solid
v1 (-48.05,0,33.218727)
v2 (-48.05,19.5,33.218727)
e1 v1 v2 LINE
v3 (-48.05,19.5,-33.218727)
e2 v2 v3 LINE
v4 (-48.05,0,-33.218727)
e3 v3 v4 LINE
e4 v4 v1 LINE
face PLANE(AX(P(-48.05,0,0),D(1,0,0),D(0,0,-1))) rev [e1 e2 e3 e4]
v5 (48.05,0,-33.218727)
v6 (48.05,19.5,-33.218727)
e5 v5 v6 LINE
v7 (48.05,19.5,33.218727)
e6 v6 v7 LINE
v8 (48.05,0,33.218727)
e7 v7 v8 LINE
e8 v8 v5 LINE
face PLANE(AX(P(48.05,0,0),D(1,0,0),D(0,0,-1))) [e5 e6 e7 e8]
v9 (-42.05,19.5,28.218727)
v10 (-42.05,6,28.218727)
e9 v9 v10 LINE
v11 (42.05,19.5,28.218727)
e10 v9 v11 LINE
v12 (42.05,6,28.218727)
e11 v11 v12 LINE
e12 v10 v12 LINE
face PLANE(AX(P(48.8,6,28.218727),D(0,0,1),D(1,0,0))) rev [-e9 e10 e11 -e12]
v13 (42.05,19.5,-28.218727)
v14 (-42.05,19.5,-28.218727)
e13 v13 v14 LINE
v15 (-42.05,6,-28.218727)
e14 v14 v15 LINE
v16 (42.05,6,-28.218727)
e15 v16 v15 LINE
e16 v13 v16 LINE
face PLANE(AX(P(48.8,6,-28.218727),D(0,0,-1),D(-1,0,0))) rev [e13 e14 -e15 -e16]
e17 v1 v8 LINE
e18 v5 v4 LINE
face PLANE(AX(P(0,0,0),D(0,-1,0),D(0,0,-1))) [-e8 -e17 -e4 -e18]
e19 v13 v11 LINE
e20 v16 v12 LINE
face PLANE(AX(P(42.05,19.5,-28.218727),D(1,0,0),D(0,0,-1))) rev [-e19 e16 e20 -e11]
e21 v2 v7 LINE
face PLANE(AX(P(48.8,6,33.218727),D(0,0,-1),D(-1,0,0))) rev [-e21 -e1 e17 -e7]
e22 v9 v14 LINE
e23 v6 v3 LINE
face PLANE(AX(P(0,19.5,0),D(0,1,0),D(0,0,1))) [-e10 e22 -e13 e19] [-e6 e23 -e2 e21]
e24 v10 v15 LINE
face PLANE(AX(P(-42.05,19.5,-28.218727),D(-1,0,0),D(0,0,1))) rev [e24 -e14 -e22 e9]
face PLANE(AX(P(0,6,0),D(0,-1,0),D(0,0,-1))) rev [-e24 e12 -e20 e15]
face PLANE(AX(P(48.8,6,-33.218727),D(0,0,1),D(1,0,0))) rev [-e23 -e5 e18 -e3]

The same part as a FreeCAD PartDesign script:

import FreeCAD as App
import Part
import Sketcher

doc = App.newDocument("Part")
params = doc.addObject("Spreadsheet::Sheet", "Params")
for row, (alias, value) in enumerate([
    ("sketch1_width", "97.6 mm"),
    ("pad1_length", "6 mm"),
    ("sketch2_width", "55 mm"),
    ("sketch2_height", "54 mm"),
    ("sketch2_width2", "97.6 mm"),
    ("pad2_length", "13.5 mm"),
    ("sketch3_width", "97.6 mm"),
    ("pocket1_length", "13.5 mm"),
    ("sketch4_width", "19.5 mm"),
    ("pocket2_length", "0.75 mm"),
    ("sketch5_width", "19.5 mm"),
    ("pocket3_length", "0.75 mm"),
    ("sketch6_width", "6 mm"),
    ("pad3_length", "13.5 mm"),
], start=1):
    params.set(f"A{row}", alias)
    params.set(f"B{row}", "=" + value)
    params.setAlias(f"B{row}", alias)

body = doc.addObject("PartDesign::Body", "Body")

sketch1 = body.newObject("Sketcher::SketchObject", "Sketch")
sketch1.AttachmentSupport = (doc.getObject("XZ_Plane"), [""])
sketch1.MapMode = "FlatFace"
sketch1.addGeometry([
    Part.LineSegment(App.Vector(-49, -33, 0), App.Vector(-49, 33, 0)),
    Part.LineSegment(App.Vector(-49, 33, 0), App.Vector(49, 33, 0)),
    Part.LineSegment(App.Vector(49, 33, 0), App.Vector(49, -33, 0)),
    Part.LineSegment(App.Vector(49, -33, 0), App.Vector(-49, -33, 0)),
], False)
sketch1.addConstraint([
    Sketcher.Constraint("Coincident", 0, 2, 1, 1),
    Sketcher.Constraint("Coincident", 1, 2, 2, 1),
    Sketcher.Constraint("Coincident", 2, 2, 3, 1),
    Sketcher.Constraint("Coincident", 3, 2, 0, 1),
    Sketcher.Constraint("Vertical", 0),
    Sketcher.Constraint("Horizontal", 1),
    Sketcher.Constraint("Vertical", 2),
    Sketcher.Constraint("Horizontal", 3),
    Sketcher.Constraint("Symmetric", 0, 2, 2, 2, -1, 1),
    Sketcher.Constraint("DistanceX", 1, 1, 1, 2, 97.6),
    Sketcher.Constraint("DistanceY", 0, 1, 0, 2, 66.437454),
])
sketch1.setExpression("Constraints[9]", "Params.sketch1_width")
pad1 = body.newObject("PartDesign::Pad", "Pad")
pad1.Profile = sketch1
pad1.setExpression("Length", "Params.pad1_length")
pad1.Reversed = True

sketch2 = body.newObject("Sketcher::SketchObject", "Sketch001")
sketch2.AttachmentSupport = (doc.getObject("XZ_Plane"), [""])
sketch2.MapMode = "FlatFace"
sketch2.AttachmentOffset = App.Placement(App.Vector(0, 0, -6), App.Rotation())
sketch2.addGeometry([
    Part.LineSegment(App.Vector(-49, 33, 0), App.Vector(49, 33, 0)),
    Part.LineSegment(App.Vector(49, 33, 0), App.Vector(49, -33, 0)),
    Part.LineSegment(App.Vector(49, -33, 0), App.Vector(-49, -33, 0)),
    Part.LineSegment(App.Vector(-49, -33, 0), App.Vector(-49, 33, 0)),
    Part.LineSegment(App.Vector(31, -27, 0), App.Vector(31, 27, 0)),
    Part.LineSegment(App.Vector(31, 27, 0), App.Vector(-24, 27, 0)),
    Part.LineSegment(App.Vector(-24, 27, 0), App.Vector(-24, -27, 0)),
    Part.LineSegment(App.Vector(-24, -27, 0), App.Vector(31, -27, 0)),
], False)
sketch2.addConstraint([
    Sketcher.Constraint("Coincident", 0, 2, 1, 1),
    Sketcher.Constraint("Coincident", 1, 2, 2, 1),
    Sketcher.Constraint("Coincident", 2, 2, 3, 1),
    Sketcher.Constraint("Coincident", 3, 2, 0, 1),
    Sketcher.Constraint("Coincident", 4, 2, 5, 1),
    Sketcher.Constraint("Coincident", 5, 2, 6, 1),
    Sketcher.Constraint("Coincident", 6, 2, 7, 1),
    Sketcher.Constraint("Coincident", 7, 2, 4, 1),
    Sketcher.Constraint("Horizontal", 0),
    Sketcher.Constraint("Vertical", 1),
    Sketcher.Constraint("Horizontal", 2),
    Sketcher.Constraint("Vertical", 3),
    Sketcher.Constraint("Vertical", 4),
    Sketcher.Constraint("Horizontal", 5),
    Sketcher.Constraint("Vertical", 6),
    Sketcher.Constraint("Horizontal", 7),
    Sketcher.Constraint("Symmetric", 0, 2, 2, 2, -1, 1),
    Sketcher.Constraint("DistanceX", 5, 2, 5, 1, 55.0),
    Sketcher.Constraint("DistanceY", 4, 1, 4, 2, 54.0),
    Sketcher.Constraint("DistanceX", 0, 1, 0, 2, 97.6),
    Sketcher.Constraint("DistanceY", -1, 1, 4, 2, 27.0),
    Sketcher.Constraint("DistanceX", 4, 2, 0, 2, 18.0),
    Sketcher.Constraint("DistanceY", 1, 2, 1, 1, 66.437454),
])
sketch2.setExpression("Constraints[17]", "Params.sketch2_width")
sketch2.setExpression("Constraints[18]", "Params.sketch2_height")
sketch2.setExpression("Constraints[19]", "Params.sketch2_width2")
pad2 = body.newObject("PartDesign::Pad", "Pad001")
pad2.Profile = sketch2
pad2.setExpression("Length", "Params.pad2_length")
pad2.Reversed = True

sketch3 = body.newObject("Sketcher::SketchObject", "Sketch002")
sketch3.AttachmentSupport = (doc.getObject("XZ_Plane"), [""])
sketch3.MapMode = "FlatFace"
sketch3.AttachmentOffset = App.Placement(App.Vector(0, 0, -19.5), App.Rotation())
sketch3.addGeometry([
    Part.LineSegment(App.Vector(-49, -28, 0), App.Vector(-49, 28, 0)),
    Part.LineSegment(App.Vector(-49, 28, 0), App.Vector(49, 28, 0)),
    Part.LineSegment(App.Vector(49, 28, 0), App.Vector(49, -28, 0)),
    Part.LineSegment(App.Vector(49, -28, 0), App.Vector(-49, -28, 0)),
], False)
sketch3.addConstraint([
    Sketcher.Constraint("Coincident", 0, 2, 1, 1),
    Sketcher.Constraint("Coincident", 1, 2, 2, 1),
    Sketcher.Constraint("Coincident", 2, 2, 3, 1),
    Sketcher.Constraint("Coincident", 3, 2, 0, 1),
    Sketcher.Constraint("Vertical", 0),
    Sketcher.Constraint("Horizontal", 1),
    Sketcher.Constraint("Vertical", 2),
    Sketcher.Constraint("Horizontal", 3),
    Sketcher.Constraint("Symmetric", 0, 2, 2, 2, -1, 1),
    Sketcher.Constraint("DistanceX", 1, 1, 1, 2, 97.6),
    Sketcher.Constraint("DistanceY", 0, 1, 0, 2, 56.437454),
])
sketch3.setExpression("Constraints[9]", "Params.sketch3_width")
pocket1 = body.newObject("PartDesign::Pocket", "Pocket")
pocket1.Profile = sketch3
pocket1.setExpression("Length", "Params.pocket1_length")
pocket1.Reversed = True

sketch4 = body.newObject("Sketcher::SketchObject", "Sketch003")
sketch4.AttachmentSupport = (doc.getObject("YZ_Plane"), [""])
sketch4.MapMode = "FlatFace"
sketch4.AttachmentOffset = App.Placement(App.Vector(0, 0, 48.8), App.Rotation())
sketch4.addGeometry([
    Part.LineSegment(App.Vector(20, 33, 0), App.Vector(0, 33, 0)),
    Part.LineSegment(App.Vector(0, 33, 0), App.Vector(0, -33, 0)),
    Part.LineSegment(App.Vector(0, -33, 0), App.Vector(20, -33, 0)),
    Part.LineSegment(App.Vector(20, -33, 0), App.Vector(20, 33, 0)),
], False)
sketch4.addConstraint([
    Sketcher.Constraint("Coincident", 0, 2, 1, 1),
    Sketcher.Constraint("Coincident", 1, 2, 2, 1),
    Sketcher.Constraint("Coincident", 2, 2, 3, 1),
    Sketcher.Constraint("Coincident", 3, 2, 0, 1),
    Sketcher.Constraint("Horizontal", 0),
    Sketcher.Constraint("Vertical", 1),
    Sketcher.Constraint("Horizontal", 2),
    Sketcher.Constraint("Vertical", 3),
    Sketcher.Constraint("Symmetric", 0, 2, 1, 2, -1, 1),
    Sketcher.Constraint("DistanceX", 0, 2, 0, 1, 19.5),
    Sketcher.Constraint("DistanceY", 1, 2, 1, 1, 66.437454),
])
sketch4.setExpression("Constraints[9]", "Params.sketch4_width")
pocket2 = body.newObject("PartDesign::Pocket", "Pocket001")
pocket2.Profile = sketch4
pocket2.setExpression("Length", "Params.pocket2_length")

sketch5 = body.newObject("Sketcher::SketchObject", "Sketch004")
sketch5.AttachmentSupport = (doc.getObject("YZ_Plane"), [""])
sketch5.MapMode = "FlatFace"
sketch5.AttachmentOffset = App.Placement(App.Vector(0, 0, -48.8), App.Rotation())
sketch5.addGeometry([
    Part.LineSegment(App.Vector(20, -33, 0), App.Vector(0, -33, 0)),
    Part.LineSegment(App.Vector(0, -33, 0), App.Vector(0, 33, 0)),
    Part.LineSegment(App.Vector(0, 33, 0), App.Vector(20, 33, 0)),
    Part.LineSegment(App.Vector(20, 33, 0), App.Vector(20, -33, 0)),
], False)
sketch5.addConstraint([
    Sketcher.Constraint("Coincident", 0, 2, 1, 1),
    Sketcher.Constraint("Coincident", 1, 2, 2, 1),
    Sketcher.Constraint("Coincident", 2, 2, 3, 1),
    Sketcher.Constraint("Coincident", 3, 2, 0, 1),
    Sketcher.Constraint("Horizontal", 0),
    Sketcher.Constraint("Vertical", 1),
    Sketcher.Constraint("Horizontal", 2),
    Sketcher.Constraint("Vertical", 3),
    Sketcher.Constraint("Symmetric", 0, 2, 1, 2, -1, 1),
    Sketcher.Constraint("DistanceX", 0, 2, 0, 1, 19.5),
    Sketcher.Constraint("DistanceY", 1, 1, 1, 2, 66.437454),
])
sketch5.setExpression("Constraints[9]", "Params.sketch5_width")
pocket3 = body.newObject("PartDesign::Pocket", "Pocket002")
pocket3.Profile = sketch5
pocket3.setExpression("Length", "Params.pocket3_length")
pocket3.Reversed = True

sketch6 = body.newObject("Sketcher::SketchObject", "Sketch005")
sketch6.AttachmentSupport = (doc.getObject("XZ_Plane"), [""])
sketch6.MapMode = "FlatFace"
sketch6.AttachmentOffset = App.Placement(App.Vector(0, 0, -6), App.Rotation())
sketch6.addGeometry([
    Part.LineSegment(App.Vector(-48, -28, 0), App.Vector(-48, 28, 0)),
    Part.LineSegment(App.Vector(-48, 28, 0), App.Vector(-42, 28, 0)),
    Part.LineSegment(App.Vector(-42, 28, 0), App.Vector(-42, -28, 0)),
    Part.LineSegment(App.Vector(-42, -28, 0), App.Vector(-48, -28, 0)),
    Part.LineSegment(App.Vector(42, -28, 0), App.Vector(42, 28, 0)),
    Part.LineSegment(App.Vector(42, 28, 0), App.Vector(48, 28, 0)),
    Part.LineSegment(App.Vector(48, 28, 0), App.Vector(48, -28, 0)),
    Part.LineSegment(App.Vector(48, -28, 0), App.Vector(42, -28, 0)),
], False)
sketch6.addConstraint([
    Sketcher.Constraint("Coincident", 0, 2, 1, 1),
    Sketcher.Constraint("Coincident", 1, 2, 2, 1),
    Sketcher.Constraint("Coincident", 2, 2, 3, 1),
    Sketcher.Constraint("Coincident", 3, 2, 0, 1),
    Sketcher.Constraint("Coincident", 4, 2, 5, 1),
    Sketcher.Constraint("Coincident", 5, 2, 6, 1),
    Sketcher.Constraint("Coincident", 6, 2, 7, 1),
    Sketcher.Constraint("Coincident", 7, 2, 4, 1),
    Sketcher.Constraint("Vertical", 0),
    Sketcher.Constraint("Horizontal", 1),
    Sketcher.Constraint("Vertical", 2),
    Sketcher.Constraint("Horizontal", 3),
    Sketcher.Constraint("Vertical", 4),
    Sketcher.Constraint("Horizontal", 5),
    Sketcher.Constraint("Vertical", 6),
    Sketcher.Constraint("Horizontal", 7),
    Sketcher.Constraint("Symmetric", 2, 2, 4, 2, -1, 1),
    Sketcher.Constraint("Symmetric", 0, 2, 6, 2, -1, 1),
    Sketcher.Constraint("Horizontal", 1, 2, 4, 2),
    Sketcher.Constraint("DistanceX", 1, 1, 1, 2, 6.0),
    Sketcher.Constraint("DistanceX", 1, 2, 4, 2, 84.1),
    Sketcher.Constraint("DistanceY", 0, 1, 0, 2, 56.437454),
])
sketch6.setExpression("Constraints[19]", "Params.sketch6_width")
pad3 = body.newObject("PartDesign::Pad", "Pad002")
pad3.Profile = sketch6
pad3.setExpression("Length", "Params.pad3_length")
pad3.Reversed = True

doc.recompute()
